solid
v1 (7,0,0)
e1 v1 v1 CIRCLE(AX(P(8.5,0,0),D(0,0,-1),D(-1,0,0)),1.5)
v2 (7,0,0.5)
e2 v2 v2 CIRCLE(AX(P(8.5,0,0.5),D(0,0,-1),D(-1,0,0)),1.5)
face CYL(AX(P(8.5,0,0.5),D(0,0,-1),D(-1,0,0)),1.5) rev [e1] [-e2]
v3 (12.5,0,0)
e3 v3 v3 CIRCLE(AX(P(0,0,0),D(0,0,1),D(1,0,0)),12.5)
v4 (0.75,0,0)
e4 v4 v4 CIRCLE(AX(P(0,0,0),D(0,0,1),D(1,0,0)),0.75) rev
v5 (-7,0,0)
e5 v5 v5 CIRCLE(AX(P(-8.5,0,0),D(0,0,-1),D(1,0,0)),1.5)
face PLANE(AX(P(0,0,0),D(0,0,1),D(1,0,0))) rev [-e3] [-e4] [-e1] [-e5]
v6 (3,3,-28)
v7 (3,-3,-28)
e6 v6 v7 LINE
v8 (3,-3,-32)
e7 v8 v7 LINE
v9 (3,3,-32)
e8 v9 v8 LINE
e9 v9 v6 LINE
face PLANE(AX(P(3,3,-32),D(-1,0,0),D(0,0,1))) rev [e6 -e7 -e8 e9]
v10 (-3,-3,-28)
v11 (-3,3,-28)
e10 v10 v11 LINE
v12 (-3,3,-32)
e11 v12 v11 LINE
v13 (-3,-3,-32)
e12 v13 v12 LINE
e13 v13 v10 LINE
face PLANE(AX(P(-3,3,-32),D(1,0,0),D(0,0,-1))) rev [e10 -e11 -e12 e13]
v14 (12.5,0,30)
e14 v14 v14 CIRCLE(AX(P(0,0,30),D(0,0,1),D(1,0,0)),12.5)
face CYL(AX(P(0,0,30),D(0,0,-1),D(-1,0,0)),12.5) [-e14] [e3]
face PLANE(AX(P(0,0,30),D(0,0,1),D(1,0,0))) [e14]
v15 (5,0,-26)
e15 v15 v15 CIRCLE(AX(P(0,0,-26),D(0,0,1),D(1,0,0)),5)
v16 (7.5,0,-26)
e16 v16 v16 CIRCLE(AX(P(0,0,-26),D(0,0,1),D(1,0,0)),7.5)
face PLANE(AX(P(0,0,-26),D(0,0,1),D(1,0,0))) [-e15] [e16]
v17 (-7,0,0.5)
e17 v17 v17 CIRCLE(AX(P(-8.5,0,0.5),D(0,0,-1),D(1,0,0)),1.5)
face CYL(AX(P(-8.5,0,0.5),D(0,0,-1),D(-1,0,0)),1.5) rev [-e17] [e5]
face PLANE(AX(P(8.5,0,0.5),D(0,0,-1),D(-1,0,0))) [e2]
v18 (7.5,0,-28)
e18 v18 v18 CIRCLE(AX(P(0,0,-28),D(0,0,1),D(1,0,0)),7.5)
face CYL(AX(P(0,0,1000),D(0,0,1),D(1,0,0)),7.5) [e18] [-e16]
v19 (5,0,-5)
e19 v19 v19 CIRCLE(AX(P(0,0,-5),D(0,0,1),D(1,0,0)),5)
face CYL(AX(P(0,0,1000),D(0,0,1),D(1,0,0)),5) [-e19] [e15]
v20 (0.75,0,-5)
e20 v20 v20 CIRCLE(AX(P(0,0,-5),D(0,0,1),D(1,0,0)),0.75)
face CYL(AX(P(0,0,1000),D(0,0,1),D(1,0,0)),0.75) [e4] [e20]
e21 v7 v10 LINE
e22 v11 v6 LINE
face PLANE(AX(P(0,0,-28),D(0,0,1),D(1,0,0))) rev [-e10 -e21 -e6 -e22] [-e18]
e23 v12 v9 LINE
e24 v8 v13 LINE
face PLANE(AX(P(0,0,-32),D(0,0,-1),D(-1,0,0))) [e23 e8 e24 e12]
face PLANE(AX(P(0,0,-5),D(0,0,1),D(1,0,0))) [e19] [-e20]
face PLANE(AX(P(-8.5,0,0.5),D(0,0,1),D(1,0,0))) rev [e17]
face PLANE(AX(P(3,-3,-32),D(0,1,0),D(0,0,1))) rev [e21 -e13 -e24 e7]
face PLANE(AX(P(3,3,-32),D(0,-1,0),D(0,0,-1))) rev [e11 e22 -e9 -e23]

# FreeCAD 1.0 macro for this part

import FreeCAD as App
import Part
import Sketcher

V = App.Vector


def add_polygon(sketch, points):
    """Adds a closed chain of lines whose ends are joined by coincident constraints."""
    first, n = sketch.GeometryCount, len(points)
    for a, b in zip(points, points[1:] + points[:1]):
        sketch.addGeometry(Part.LineSegment(App.Vector(*a, 0), App.Vector(*b, 0)), False)
    for i in range(n):
        sketch.addConstraint(Sketcher.Constraint("Coincident", first + i, 2, first + (i + 1) % n, 1))

doc = App.newDocument("Part")
body = doc.addObject("PartDesign::Body", "Body")

sketch1 = body.newObject("Sketcher::SketchObject", "Sketch")
sketch1.AttachmentSupport = (doc.getObject("XY_Plane"), [""])
sketch1.MapMode = "FlatFace"
sketch1.addGeometry(Part.Circle(V(0, 0, 0), V(0, 0, 1), 12), False)
sketch1.addConstraint([
    Sketcher.Constraint("Coincident", 0, 3, -1, 1),
    Sketcher.Constraint("Diameter", 0, 25.0),
])
pad1 = body.newObject("PartDesign::Pad", "Pad")
pad1.Profile = sketch1
pad1.Length = 30

sketch2 = body.newObject("Sketcher::SketchObject", "Sketch001")
sketch2.AttachmentSupport = (doc.getObject("XY_Plane"), [""])
sketch2.MapMode = "FlatFace"
sketch2.addGeometry([
    Part.Circle(V(8.5, 0, 0), V(0, 0, 1), 1.5),
    Part.Circle(V(-8.5, 0, 0), V(0, 0, 1), 1.5),
], False)
sketch2.addConstraint([
    Sketcher.Constraint("Equal", 0, 1),
    Sketcher.Constraint("Symmetric", 0, 3, 1, 3, -1, 1),
    Sketcher.Constraint("PointOnObject", 0, 3, -1),
    Sketcher.Constraint("Diameter", 0, 3.0),
    Sketcher.Constraint("DistanceX", 1, 3, 0, 3, 17.0),
])
pocket1 = body.newObject("PartDesign::Pocket", "Pocket")
pocket1.Profile = sketch2
pocket1.Length = 0.5
pocket1.Reversed = True

sketch3 = body.newObject("Sketcher::SketchObject", "Sketch002")
sketch3.AttachmentSupport = (doc.getObject("XZ_Plane"), [""])
sketch3.MapMode = "FlatFace"
add_polygon(sketch3, [(0, -28), (0, 0), (0.8, 0), (0.8, -5), (5, -5), (5, -26), (7.5, -26), (7.5, -28)])
sketch3.addConstraint([
    Sketcher.Constraint("Vertical", 0),
    Sketcher.Constraint("Horizontal", 1),
    Sketcher.Constraint("Vertical", 2),
    Sketcher.Constraint("Horizontal", 3),
    Sketcher.Constraint("Vertical", 4),
    Sketcher.Constraint("Horizontal", 5),
    Sketcher.Constraint("Vertical", 6),
    Sketcher.Constraint("Horizontal", 7),
    Sketcher.Constraint("Coincident", 0, 2, -1, 1),
    Sketcher.Constraint("DistanceY", 0, 1, 0, 2, 28.0),
    Sketcher.Constraint("DistanceY", 2, 2, 2, 1, 5.0),
    Sketcher.Constraint("DistanceY", 4, 2, 4, 1, 21.0),
    Sketcher.Constraint("DistanceX", 5, 1, 5, 2, 2.5),
    Sketcher.Constraint("DistanceX", 7, 2, 7, 1, 7.5),
    Sketcher.Constraint("DistanceX", 1, 1, 1, 2, 0.75),
])
revolution = body.newObject("PartDesign::Revolution", "Revolution")
revolution.Profile = sketch3
revolution.ReferenceAxis = (sketch3, ["V_Axis"])
revolution.Angle = 360

sketch4 = body.newObject("Sketcher::SketchObject", "Sketch003")
sketch4.AttachmentSupport = (doc.getObject("XY_Plane"), [""])
sketch4.MapMode = "FlatFace"
sketch4.AttachmentOffset = App.Placement(V(0, 0, -28), App.Rotation())
add_polygon(sketch4, [(3, 3), (3, -3), (-3, -3), (-3, 3)])
sketch4.addConstraint([
    Sketcher.Constraint("Vertical", 0),
    Sketcher.Constraint("Horizontal", 1),
    Sketcher.Constraint("Vertical", 2),
    Sketcher.Constraint("Horizontal", 3),
    Sketcher.Constraint("Symmetric", 0, 2, 2, 2, -1, 1),
    Sketcher.Constraint("Equal", 3, 0),
    Sketcher.Constraint("DistanceX", 1, 2, 1, 1, 6.0),
])
pad2 = body.newObject("PartDesign::Pad", "Pad001")
pad2.Profile = sketch4
pad2.Length = 4
pad2.Reversed = True

doc.recompute()
